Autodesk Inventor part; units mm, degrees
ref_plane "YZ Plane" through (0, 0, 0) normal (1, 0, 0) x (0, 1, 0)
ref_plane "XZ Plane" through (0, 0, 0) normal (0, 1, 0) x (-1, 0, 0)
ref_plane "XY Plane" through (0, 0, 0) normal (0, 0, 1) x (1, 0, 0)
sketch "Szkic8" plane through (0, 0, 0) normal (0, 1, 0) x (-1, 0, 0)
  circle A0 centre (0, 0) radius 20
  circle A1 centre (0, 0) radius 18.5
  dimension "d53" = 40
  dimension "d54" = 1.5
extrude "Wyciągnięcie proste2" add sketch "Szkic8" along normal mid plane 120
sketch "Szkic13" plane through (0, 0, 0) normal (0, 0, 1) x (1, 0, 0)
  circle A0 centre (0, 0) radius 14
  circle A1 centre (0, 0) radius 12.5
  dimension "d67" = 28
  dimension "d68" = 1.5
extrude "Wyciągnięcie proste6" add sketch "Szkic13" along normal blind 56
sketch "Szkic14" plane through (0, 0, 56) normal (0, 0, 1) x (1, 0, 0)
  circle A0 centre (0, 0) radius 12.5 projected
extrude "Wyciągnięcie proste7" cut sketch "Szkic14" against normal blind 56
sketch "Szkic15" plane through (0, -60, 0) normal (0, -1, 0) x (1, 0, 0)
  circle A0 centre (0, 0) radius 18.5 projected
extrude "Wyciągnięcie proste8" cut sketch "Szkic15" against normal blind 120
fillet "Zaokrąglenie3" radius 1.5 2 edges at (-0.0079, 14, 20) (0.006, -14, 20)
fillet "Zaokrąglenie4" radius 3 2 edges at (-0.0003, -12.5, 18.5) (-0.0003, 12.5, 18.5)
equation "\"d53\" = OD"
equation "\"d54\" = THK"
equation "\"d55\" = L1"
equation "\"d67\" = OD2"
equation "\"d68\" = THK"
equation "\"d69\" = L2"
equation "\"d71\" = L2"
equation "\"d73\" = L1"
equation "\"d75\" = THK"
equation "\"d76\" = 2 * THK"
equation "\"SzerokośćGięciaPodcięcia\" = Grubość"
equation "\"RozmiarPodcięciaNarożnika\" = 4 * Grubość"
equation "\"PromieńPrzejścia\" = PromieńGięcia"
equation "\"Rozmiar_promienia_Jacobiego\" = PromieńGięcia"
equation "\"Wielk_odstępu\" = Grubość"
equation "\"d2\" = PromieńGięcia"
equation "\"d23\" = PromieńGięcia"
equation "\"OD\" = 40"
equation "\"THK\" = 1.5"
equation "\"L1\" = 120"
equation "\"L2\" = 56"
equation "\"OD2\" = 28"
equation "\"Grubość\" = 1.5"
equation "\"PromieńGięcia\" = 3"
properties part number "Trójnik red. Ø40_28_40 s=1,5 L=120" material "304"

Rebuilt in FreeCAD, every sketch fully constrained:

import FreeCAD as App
import Part
import Sketcher

V = App.Vector
Q = App.Units.Quantity


def edges_at(feature, points):
    """Names of the edges that pass closest to the given points."""
    edges = feature.Shape.Edges
    near = lambda p: min(range(len(edges)), key=lambda i: edges[i].distToShape(Part.Vertex(*p))[0])
    return sorted({f"Edge{near(p) + 1}" for p in points})

doc = App.newDocument("Part")
body = doc.addObject("PartDesign::Body", "Body")

sketch1 = body.newObject("Sketcher::SketchObject", "Sketch")
sketch1.AttachmentSupport = (doc.getObject("XZ_Plane"), [""])
sketch1.MapMode = "FlatFace"
sketch1.addGeometry([
    Part.Circle(V(0, 0, 0), V(0, 0, 1), 20),
    Part.Circle(V(0, 0, 0), V(0, 0, 1), 18),
], False)
sketch1.addConstraint([
    Sketcher.Constraint("Coincident", 0, 3, -1, 1),
    Sketcher.Constraint("Coincident", 1, 3, -1, 1),
    Sketcher.Constraint("Diameter", 0, Q("40 mm")),
    Sketcher.Constraint("Diameter", 1, Q("37 mm")),
])
pad1 = body.newObject("PartDesign::Pad", "Pad")
pad1.Profile = sketch1
pad1.Length = 120
pad1.Midplane = True

sketch2 = body.newObject("Sketcher::SketchObject", "Sketch001")
sketch2.AttachmentSupport = (doc.getObject("XY_Plane"), [""])
sketch2.MapMode = "FlatFace"
sketch2.addGeometry([
    Part.Circle(V(0, 0, 0), V(0, 0, 1), 14),
    Part.Circle(V(0, 0, 0), V(0, 0, 1), 12),
], False)
sketch2.addConstraint([
    Sketcher.Constraint("Coincident", 0, 3, -1, 1),
    Sketcher.Constraint("Coincident", 1, 3, -1, 1),
    Sketcher.Constraint("Diameter", 0, Q("28 mm")),
    Sketcher.Constraint("Diameter", 1, Q("25 mm")),
])
pad2 = body.newObject("PartDesign::Pad", "Pad001")
pad2.Profile = sketch2
pad2.Length = 56

sketch3 = body.newObject("Sketcher::SketchObject", "Sketch002")
sketch3.AttachmentSupport = (doc.getObject("XY_Plane"), [""])
sketch3.MapMode = "FlatFace"
sketch3.AttachmentOffset = App.Placement(V(0, 0, 56), App.Rotation())
sketch3.addGeometry(Part.Circle(V(0, 0, 0), V(0, 0, 1), 12), False)
sketch3.addConstraint([
    Sketcher.Constraint("Coincident", 0, 3, -1, 1),
    Sketcher.Constraint("Diameter", 0, Q("25 mm")),
])
pocket1 = body.newObject("PartDesign::Pocket", "Pocket")
pocket1.Profile = sketch3
pocket1.Length = 56

sketch4 = body.newObject("Sketcher::SketchObject", "Sketch003")
sketch4.AttachmentSupport = (doc.getObject("XZ_Plane"), [""])
sketch4.MapMode = "FlatFace"
sketch4.AttachmentOffset = App.Placement(V(0, 0, 60), App.Rotation())
sketch4.addGeometry(Part.Circle(V(0, 0, 0), V(0, 0, 1), 18), False)
sketch4.addConstraint([
    Sketcher.Constraint("Coincident", 0, 3, -1, 1),
    Sketcher.Constraint("Diameter", 0, Q("37 mm")),
])
pocket2 = body.newObject("PartDesign::Pocket", "Pocket001")
pocket2.Profile = sketch4
pocket2.Length = 120
doc.recompute()

fillet = body.newObject("PartDesign::Fillet", "Fillet")
fillet.Base = (pocket2, edges_at(pocket2, [(-0.008, 14, 20), (0.006, -14, 20)]))
fillet.Radius = 1.5
doc.recompute()

fillet2 = body.newObject("PartDesign::Fillet", "Fillet001")
fillet2.Base = (fillet, edges_at(fillet, [(0, -12.5, 18.5), (0, 12.5, 18.5)]))
fillet2.Radius = 3

doc.recompute()
